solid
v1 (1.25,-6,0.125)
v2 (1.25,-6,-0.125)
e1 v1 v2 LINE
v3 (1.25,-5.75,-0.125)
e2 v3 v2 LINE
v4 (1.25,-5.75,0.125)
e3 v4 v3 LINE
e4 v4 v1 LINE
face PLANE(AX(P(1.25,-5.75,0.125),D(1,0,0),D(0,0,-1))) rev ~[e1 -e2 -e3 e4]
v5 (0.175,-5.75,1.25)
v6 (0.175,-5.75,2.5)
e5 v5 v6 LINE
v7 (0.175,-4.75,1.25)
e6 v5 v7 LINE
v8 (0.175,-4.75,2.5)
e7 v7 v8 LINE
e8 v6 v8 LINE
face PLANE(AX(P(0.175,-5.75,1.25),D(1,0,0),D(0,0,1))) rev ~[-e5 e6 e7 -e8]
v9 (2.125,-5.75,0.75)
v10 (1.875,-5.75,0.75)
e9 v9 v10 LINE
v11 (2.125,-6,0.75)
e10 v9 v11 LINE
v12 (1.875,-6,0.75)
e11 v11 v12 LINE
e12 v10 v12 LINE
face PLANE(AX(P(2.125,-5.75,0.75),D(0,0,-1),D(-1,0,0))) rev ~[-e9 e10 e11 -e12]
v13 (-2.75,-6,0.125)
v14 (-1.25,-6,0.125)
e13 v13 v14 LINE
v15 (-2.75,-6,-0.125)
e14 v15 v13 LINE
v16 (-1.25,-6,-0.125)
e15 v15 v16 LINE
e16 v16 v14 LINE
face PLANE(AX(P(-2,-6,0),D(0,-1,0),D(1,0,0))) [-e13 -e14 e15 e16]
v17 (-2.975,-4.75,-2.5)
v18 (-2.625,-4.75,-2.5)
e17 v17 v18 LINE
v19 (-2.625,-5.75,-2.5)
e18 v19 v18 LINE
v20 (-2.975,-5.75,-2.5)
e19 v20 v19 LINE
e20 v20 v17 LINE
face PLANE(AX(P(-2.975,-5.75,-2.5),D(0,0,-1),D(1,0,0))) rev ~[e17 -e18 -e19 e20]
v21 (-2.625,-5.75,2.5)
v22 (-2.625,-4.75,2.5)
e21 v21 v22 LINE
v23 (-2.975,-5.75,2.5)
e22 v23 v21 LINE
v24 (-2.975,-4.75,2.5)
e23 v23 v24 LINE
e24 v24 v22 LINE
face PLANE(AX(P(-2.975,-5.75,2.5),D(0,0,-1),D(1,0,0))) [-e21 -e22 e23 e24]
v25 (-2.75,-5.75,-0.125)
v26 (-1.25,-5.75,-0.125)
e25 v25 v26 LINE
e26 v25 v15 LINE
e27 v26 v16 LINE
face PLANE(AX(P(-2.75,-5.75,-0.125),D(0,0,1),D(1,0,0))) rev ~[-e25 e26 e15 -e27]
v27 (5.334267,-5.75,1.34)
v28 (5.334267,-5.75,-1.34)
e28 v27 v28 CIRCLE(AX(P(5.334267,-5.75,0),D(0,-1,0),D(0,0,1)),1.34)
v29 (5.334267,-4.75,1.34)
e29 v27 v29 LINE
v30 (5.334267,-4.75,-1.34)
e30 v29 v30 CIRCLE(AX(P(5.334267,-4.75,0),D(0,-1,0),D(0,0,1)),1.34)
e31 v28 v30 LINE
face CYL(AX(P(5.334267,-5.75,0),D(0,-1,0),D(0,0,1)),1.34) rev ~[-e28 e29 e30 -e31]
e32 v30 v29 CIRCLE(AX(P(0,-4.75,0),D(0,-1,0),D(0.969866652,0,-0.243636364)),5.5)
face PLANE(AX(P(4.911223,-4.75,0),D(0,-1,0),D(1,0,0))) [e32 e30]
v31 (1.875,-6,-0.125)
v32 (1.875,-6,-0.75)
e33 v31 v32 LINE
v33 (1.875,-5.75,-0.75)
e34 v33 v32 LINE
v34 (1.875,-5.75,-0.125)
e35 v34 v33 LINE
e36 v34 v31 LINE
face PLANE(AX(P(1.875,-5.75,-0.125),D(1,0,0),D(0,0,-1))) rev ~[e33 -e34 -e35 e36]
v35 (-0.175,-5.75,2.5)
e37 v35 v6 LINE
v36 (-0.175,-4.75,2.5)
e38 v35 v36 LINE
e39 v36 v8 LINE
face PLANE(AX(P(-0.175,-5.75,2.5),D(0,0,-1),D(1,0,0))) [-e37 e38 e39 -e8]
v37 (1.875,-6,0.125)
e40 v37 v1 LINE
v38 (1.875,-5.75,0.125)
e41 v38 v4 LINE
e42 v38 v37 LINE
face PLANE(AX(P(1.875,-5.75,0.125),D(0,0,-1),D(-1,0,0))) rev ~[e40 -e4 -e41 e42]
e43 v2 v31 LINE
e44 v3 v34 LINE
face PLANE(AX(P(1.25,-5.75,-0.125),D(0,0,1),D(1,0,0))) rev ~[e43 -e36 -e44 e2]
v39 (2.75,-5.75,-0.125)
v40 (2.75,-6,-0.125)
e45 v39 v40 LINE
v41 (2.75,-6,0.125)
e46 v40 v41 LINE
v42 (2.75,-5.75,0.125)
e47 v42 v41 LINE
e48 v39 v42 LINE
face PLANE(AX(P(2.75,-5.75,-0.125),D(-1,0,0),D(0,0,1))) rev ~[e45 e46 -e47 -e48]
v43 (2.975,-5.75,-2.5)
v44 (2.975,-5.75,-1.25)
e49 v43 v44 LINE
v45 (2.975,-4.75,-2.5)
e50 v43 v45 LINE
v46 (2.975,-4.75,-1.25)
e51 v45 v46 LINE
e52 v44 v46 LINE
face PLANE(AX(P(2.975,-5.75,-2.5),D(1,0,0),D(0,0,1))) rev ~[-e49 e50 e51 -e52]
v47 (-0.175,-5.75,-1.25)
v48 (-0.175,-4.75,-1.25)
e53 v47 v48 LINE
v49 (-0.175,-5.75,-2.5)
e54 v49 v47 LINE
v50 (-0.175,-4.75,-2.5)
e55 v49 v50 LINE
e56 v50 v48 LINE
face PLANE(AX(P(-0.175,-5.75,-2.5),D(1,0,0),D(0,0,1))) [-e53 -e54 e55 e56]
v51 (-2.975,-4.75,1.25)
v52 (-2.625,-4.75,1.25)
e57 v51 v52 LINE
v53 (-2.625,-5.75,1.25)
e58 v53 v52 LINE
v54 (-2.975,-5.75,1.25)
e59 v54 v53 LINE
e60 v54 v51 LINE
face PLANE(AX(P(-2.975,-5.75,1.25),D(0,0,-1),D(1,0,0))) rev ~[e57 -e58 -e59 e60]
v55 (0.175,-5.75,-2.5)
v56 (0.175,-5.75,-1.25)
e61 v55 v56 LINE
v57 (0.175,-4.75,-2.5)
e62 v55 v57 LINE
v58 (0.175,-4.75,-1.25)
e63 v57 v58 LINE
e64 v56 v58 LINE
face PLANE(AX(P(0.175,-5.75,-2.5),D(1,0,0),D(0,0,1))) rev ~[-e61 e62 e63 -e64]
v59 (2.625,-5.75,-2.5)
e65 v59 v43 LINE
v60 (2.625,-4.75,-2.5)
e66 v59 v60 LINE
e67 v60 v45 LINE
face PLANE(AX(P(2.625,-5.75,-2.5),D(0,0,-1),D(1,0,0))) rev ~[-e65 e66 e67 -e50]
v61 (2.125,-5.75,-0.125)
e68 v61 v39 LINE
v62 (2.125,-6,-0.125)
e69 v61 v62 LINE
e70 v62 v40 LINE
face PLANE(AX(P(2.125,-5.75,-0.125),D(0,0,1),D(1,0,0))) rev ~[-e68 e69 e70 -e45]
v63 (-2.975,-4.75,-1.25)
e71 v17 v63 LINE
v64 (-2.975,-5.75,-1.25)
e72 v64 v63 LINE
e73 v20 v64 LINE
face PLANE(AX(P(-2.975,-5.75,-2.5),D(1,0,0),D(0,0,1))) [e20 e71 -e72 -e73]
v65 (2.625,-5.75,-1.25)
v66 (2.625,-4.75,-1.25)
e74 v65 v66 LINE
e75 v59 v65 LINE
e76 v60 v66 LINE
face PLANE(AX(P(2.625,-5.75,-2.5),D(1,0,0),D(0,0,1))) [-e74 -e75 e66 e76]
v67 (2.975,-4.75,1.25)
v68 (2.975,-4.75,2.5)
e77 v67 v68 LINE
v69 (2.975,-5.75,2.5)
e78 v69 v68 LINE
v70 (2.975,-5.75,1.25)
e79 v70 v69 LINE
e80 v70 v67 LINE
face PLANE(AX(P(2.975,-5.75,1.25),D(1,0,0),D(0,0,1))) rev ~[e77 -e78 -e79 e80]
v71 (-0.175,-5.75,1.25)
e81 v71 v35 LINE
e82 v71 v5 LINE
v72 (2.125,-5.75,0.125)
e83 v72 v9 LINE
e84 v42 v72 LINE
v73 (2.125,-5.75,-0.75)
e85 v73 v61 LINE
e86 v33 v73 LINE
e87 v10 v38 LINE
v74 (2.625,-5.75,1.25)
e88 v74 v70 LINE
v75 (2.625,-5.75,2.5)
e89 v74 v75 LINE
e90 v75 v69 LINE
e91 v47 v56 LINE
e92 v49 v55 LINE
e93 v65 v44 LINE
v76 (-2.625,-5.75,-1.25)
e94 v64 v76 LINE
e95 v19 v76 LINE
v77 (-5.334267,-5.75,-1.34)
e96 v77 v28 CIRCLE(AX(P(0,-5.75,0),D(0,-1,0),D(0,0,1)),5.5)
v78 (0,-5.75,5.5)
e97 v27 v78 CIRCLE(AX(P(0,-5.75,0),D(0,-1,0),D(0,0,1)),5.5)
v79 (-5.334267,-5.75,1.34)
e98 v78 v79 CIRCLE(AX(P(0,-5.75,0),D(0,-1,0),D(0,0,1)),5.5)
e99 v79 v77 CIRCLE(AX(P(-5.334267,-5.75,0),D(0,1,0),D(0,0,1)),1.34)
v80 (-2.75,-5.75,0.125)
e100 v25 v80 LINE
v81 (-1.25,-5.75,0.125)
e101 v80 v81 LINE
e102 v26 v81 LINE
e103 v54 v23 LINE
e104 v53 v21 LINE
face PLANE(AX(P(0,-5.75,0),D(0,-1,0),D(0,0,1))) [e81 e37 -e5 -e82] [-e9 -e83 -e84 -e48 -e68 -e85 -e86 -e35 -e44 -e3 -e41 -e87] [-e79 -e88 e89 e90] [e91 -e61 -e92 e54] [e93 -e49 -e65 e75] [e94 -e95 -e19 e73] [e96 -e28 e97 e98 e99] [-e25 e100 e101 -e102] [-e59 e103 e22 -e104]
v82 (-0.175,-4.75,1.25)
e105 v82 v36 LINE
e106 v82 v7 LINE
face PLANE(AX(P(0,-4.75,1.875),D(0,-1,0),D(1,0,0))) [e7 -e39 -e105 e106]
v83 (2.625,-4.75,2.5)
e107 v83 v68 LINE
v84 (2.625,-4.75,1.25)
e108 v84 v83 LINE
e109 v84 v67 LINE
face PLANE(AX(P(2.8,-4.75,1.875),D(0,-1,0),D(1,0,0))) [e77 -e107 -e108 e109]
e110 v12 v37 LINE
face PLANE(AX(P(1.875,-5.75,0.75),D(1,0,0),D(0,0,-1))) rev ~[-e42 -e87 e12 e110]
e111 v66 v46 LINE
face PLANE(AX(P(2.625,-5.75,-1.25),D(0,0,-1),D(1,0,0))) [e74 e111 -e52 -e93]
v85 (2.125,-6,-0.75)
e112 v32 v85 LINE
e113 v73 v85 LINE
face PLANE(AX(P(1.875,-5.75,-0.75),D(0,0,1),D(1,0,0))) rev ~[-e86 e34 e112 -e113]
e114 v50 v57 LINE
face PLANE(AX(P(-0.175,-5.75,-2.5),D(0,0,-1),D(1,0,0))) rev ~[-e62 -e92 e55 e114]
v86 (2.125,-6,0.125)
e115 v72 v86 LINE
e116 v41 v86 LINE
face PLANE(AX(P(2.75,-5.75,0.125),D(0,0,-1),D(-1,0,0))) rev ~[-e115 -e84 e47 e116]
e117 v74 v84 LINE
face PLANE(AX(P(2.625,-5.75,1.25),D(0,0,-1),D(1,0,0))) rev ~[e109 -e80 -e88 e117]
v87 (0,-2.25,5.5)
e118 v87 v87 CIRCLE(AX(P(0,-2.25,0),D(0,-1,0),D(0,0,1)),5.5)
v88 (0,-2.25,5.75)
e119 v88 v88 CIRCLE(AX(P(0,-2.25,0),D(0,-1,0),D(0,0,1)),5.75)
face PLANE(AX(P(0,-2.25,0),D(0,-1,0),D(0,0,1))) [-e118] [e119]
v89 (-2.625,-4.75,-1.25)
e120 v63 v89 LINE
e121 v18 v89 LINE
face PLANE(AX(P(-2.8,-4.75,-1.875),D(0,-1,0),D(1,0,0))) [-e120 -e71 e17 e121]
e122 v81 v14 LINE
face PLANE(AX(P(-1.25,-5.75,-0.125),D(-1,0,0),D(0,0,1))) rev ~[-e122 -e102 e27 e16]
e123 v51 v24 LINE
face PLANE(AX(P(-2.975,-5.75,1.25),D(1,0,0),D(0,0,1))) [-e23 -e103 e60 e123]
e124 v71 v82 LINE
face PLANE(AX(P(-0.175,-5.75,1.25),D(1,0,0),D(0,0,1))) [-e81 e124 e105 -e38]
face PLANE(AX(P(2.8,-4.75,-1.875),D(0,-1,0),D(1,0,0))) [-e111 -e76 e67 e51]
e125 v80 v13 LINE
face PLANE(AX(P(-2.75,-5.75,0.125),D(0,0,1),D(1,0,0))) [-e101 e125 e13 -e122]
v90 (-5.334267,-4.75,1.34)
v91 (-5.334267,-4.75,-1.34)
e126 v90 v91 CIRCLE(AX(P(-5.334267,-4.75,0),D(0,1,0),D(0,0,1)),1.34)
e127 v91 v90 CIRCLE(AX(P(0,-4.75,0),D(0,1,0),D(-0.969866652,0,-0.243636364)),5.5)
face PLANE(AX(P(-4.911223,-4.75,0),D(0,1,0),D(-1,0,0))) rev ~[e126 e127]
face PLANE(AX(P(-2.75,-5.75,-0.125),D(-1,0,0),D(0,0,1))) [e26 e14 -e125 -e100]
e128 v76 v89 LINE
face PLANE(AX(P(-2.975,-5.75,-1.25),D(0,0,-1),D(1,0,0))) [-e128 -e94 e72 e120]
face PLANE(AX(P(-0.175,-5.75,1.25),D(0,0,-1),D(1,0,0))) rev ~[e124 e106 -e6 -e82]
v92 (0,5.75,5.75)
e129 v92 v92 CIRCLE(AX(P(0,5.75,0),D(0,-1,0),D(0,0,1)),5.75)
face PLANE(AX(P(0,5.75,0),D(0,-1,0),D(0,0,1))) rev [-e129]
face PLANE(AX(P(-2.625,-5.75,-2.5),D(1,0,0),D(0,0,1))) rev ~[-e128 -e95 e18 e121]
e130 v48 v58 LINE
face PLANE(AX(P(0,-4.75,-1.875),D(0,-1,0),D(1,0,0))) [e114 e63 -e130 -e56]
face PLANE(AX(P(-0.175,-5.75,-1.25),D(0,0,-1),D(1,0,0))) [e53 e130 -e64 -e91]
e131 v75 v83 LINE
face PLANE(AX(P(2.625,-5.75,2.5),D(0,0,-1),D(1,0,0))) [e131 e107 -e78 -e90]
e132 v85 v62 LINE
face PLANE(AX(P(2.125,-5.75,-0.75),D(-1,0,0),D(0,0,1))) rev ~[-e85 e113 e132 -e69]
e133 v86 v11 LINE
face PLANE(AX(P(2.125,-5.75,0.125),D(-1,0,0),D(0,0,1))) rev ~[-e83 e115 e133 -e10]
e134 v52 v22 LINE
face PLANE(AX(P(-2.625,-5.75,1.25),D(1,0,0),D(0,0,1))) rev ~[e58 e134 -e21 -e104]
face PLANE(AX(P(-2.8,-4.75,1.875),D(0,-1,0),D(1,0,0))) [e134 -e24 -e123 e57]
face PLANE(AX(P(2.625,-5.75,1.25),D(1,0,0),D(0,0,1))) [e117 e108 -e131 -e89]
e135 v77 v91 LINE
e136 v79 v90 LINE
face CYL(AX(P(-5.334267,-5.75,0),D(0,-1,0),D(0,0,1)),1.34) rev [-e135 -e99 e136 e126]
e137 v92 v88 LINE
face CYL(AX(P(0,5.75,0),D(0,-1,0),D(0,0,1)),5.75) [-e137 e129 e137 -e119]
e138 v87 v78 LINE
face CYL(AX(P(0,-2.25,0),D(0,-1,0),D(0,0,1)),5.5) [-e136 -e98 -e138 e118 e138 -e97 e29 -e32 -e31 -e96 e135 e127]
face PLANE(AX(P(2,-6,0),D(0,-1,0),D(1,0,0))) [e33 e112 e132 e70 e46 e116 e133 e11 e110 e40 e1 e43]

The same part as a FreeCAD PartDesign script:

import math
import FreeCAD as App
import Part
import Sketcher

V = App.Vector
Q = App.Units.Quantity


def add_polygon(sketch, points):
    """Adds a closed chain of lines whose ends are joined by coincident constraints."""
    first, n = sketch.GeometryCount, len(points)
    for a, b in zip(points, points[1:] + points[:1]):
        sketch.addGeometry(Part.LineSegment(App.Vector(*a, 0), App.Vector(*b, 0)), False)
    for i in range(n):
        sketch.addConstraint(Sketcher.Constraint("Coincident", first + i, 2, first + (i + 1) % n, 1))

doc = App.newDocument("Part")
params = doc.addObject("Spreadsheet::Sheet", "Params")
for row, (alias, value) in enumerate([
    ("sketch1_width", "8 mm"),
    ("sketch1_width2", "3.5 mm"),
    ("sketch1_height", "5.5 mm"),
    ("sketch1_height2", "5.75 mm"),
    ("revolution_angle", "360 deg"),
    ("sketch2_radius", "5.5 mm"),
    ("sketch2_radius2", "1.34 mm"),
    ("sketch2_width", "0.35 mm"),
    ("sketch2_height", "1.25 mm"),
    ("pocket1_length", "1 mm"),
    ("sketch3_width", "1.5 mm"),
    ("sketch3_width2", "0.25 mm"),
    ("pad1_length", "0.25 mm"),
], start=1):
    params.set(f"A{row}", alias)
    params.set(f"B{row}", "=" + value)
    params.setAlias(f"B{row}", alias)

body = doc.addObject("PartDesign::Body", "Body")

# Sketch on YZ plane
sketch1 = body.newObject("Sketcher::SketchObject", "Sketch")
sketch1.AttachmentSupport = (doc.getObject("YZ_Plane"), [""])
sketch1.MapMode = "FlatFace"
add_polygon(sketch1, [(5.75, 0), (5.75, 5.75), (-2.25, 5.75), (-2.25, 5.5), (-5.75, 5.5), (-5.75, 0)])  # lines 0-5
sketch1.addConstraint(Sketcher.Constraint("Vertical", 0))
sketch1.addConstraint(Sketcher.Constraint("Horizontal", 1))
sketch1.addConstraint(Sketcher.Constraint("Vertical", 2))
sketch1.addConstraint(Sketcher.Constraint("Horizontal", 3))
sketch1.addConstraint(Sketcher.Constraint("Vertical", 4))
sketch1.addConstraint(Sketcher.Constraint("Horizontal", 5))
sketch1.addConstraint(Sketcher.Constraint("Symmetric", 4, 2, 5, 2, -1, 1))
sketch1.addConstraint(Sketcher.Constraint("DistanceX", 1, 2, 1, 1, Q("8 mm")))
sketch1.addConstraint(Sketcher.Constraint("DistanceX", 3, 2, 3, 1, Q("3.5 mm")))
sketch1.addConstraint(Sketcher.Constraint("DistanceY", 4, 2, 4, 1, Q("5.5 mm")))
sketch1.addConstraint(Sketcher.Constraint("DistanceY", 0, 1, 0, 2, Q("5.75 mm")))
sketch1.setExpression("Constraints[13]", "Params.sketch1_width")
sketch1.setExpression("Constraints[14]", "Params.sketch1_width2")
sketch1.setExpression("Constraints[15]", "Params.sketch1_height")
sketch1.setExpression("Constraints[16]", "Params.sketch1_height2")
revolution = body.newObject("PartDesign::Revolution", "Revolution")
revolution.Profile = sketch1
revolution.ReferenceAxis = (sketch1, ["H_Axis"])
revolution.setExpression("Angle", "Params.revolution_angle")

# Sketch on XZ plane
sketch2 = body.newObject("Sketcher::SketchObject", "Sketch001")
sketch2.AttachmentSupport = (doc.getObject("XZ_Plane"), [""])
sketch2.MapMode = "FlatFace"
sketch2.AttachmentOffset = App.Placement(V(0, 0, 5.75), App.Rotation())
add_polygon(sketch2, [(-0.17, -1.25), (-0.17, -2.5), (0.17, -2.5), (0.17, -1.25)])  # lines 0-3
add_polygon(sketch2, [(2.62, 2.5), (2.62, 1.25), (2.98, 1.25), (2.98, 2.5)])  # lines 4-7
add_polygon(sketch2, [(-0.17, 2.5), (-0.17, 1.25), (0.17, 1.25), (0.17, 2.5)])  # lines 8-11
add_polygon(sketch2, [(2.62, -1.25), (2.62, -2.5), (2.98, -2.5), (2.98, -1.25)])  # lines 12-15
add_polygon(sketch2, [(-2.98, -1.25), (-2.98, -2.5), (-2.62, -2.5), (-2.62, -1.25)])  # lines 16-19
add_polygon(sketch2, [(-2.98, 2.5), (-2.98, 1.25), (-2.62, 1.25), (-2.62, 2.5)])  # lines 20-23
sketch2.addGeometry(Part.ArcOfCircle(Part.Circle(V(5.33, 0, 0), V(0, 0, 1), 1.34), math.radians(90), math.radians(270)), False)  # 24
sketch2.addGeometry(Part.ArcOfCircle(Part.Circle(V(0, 0, 0), V(0, 0, 1), 5.5), math.radians(-14), math.radians(14)), False)  # 25
sketch2.addGeometry(Part.ArcOfCircle(Part.Circle(V(-5.33, 0, 0), V(0, 0, 1), 1.34), math.radians(-90), math.radians(90)), False)  # 26
sketch2.addGeometry(Part.ArcOfCircle(Part.Circle(V(0, 0, 0), V(0, 0, 1), 5.5), math.radians(166), math.radians(194)), False)  # 27
sketch2.addConstraint(Sketcher.Constraint("Coincident", 24, 1, 25, 2))
sketch2.addConstraint(Sketcher.Constraint("Coincident", 25, 1, 24, 2))
sketch2.addConstraint(Sketcher.Constraint("Coincident", 26, 1, 27, 2))
sketch2.addConstraint(Sketcher.Constraint("Coincident", 27, 1, 26, 2))
sketch2.addConstraint(Sketcher.Constraint("Vertical", 0))
sketch2.addConstraint(Sketcher.Constraint("Horizontal", 1))
sketch2.addConstraint(Sketcher.Constraint("Vertical", 2))
sketch2.addConstraint(Sketcher.Constraint("Horizontal", 3))
sketch2.addConstraint(Sketcher.Constraint("Vertical", 4))
sketch2.addConstraint(Sketcher.Constraint("Horizontal", 5))
sketch2.addConstraint(Sketcher.Constraint("Vertical", 6))
sketch2.addConstraint(Sketcher.Constraint("Horizontal", 7))
sketch2.addConstraint(Sketcher.Constraint("Vertical", 8))
sketch2.addConstraint(Sketcher.Constraint("Horizontal", 9))
sketch2.addConstraint(Sketcher.Constraint("Vertical", 10))
sketch2.addConstraint(Sketcher.Constraint("Horizontal", 11))
sketch2.addConstraint(Sketcher.Constraint("Vertical", 12))
sketch2.addConstraint(Sketcher.Constraint("Horizontal", 13))
sketch2.addConstraint(Sketcher.Constraint("Vertical", 14))
sketch2.addConstraint(Sketcher.Constraint("Horizontal", 15))
sketch2.addConstraint(Sketcher.Constraint("Vertical", 16))
sketch2.addConstraint(Sketcher.Constraint("Horizontal", 17))
sketch2.addConstraint(Sketcher.Constraint("Vertical", 18))
sketch2.addConstraint(Sketcher.Constraint("Horizontal", 19))
sketch2.addConstraint(Sketcher.Constraint("Vertical", 20))
sketch2.addConstraint(Sketcher.Constraint("Horizontal", 21))
sketch2.addConstraint(Sketcher.Constraint("Vertical", 22))
sketch2.addConstraint(Sketcher.Constraint("Horizontal", 23))
sketch2.addConstraint(Sketcher.Constraint("Coincident", 25, 3, -1, 1))
sketch2.addConstraint(Sketcher.Constraint("Coincident", 27, 3, -1, 1))
sketch2.addConstraint(Sketcher.Constraint("Equal", 24, 26))
sketch2.addConstraint(Sketcher.Constraint("Equal", 25, 27))
sketch2.addConstraint(Sketcher.Constraint("Symmetric", 24, 3, 26, 3, -1, 1))
sketch2.addConstraint(Sketcher.Constraint("Symmetric", 2, 2, 8, 2, -1, 1))
sketch2.addConstraint(Sketcher.Constraint("Symmetric", 0, 2, 10, 2, -1, 1))
sketch2.addConstraint(Sketcher.Constraint("Symmetric", 6, 2, 16, 2, -1, 1))
sketch2.addConstraint(Sketcher.Constraint("Symmetric", 4, 2, 18, 2, -1, 1))
sketch2.addConstraint(Sketcher.Constraint("Symmetric", 14, 2, 20, 2, -1, 1))
sketch2.addConstraint(Sketcher.Constraint("Symmetric", 12, 2, 22, 2, -1, 1))
sketch2.addConstraint(Sketcher.Constraint("Symmetric", 13, 2, 16, 2, -2))
sketch2.addConstraint(Sketcher.Constraint("Symmetric", 15, 2, 18, 2, -2))
sketch2.addConstraint(Sketcher.Constraint("PointOnObject", 24, 3, -1))
sketch2.addConstraint(Sketcher.Constraint("Horizontal", 5, 2, 8, 2))
sketch2.addConstraint(Sketcher.Constraint("Horizontal", 7, 2, 10, 2))
sketch2.addConstraint(Sketcher.Constraint("Vertical", 3, 2, 8, 2))
sketch2.addConstraint(Sketcher.Constraint("Equal", 3, 5))
sketch2.addConstraint(Sketcher.Constraint("Radius", 25, Q("5.5 mm")))
sketch2.addConstraint(Sketcher.Constraint("Radius", 24, Q("1.34 mm")))
sketch2.addConstraint(Sketcher.Constraint("DistanceX", 1, 1, 1, 2, Q("0.35 mm")))
sketch2.addConstraint(Sketcher.Constraint("DistanceY", 0, 2, 0, 1, Q("1.25 mm")))
sketch2.addConstraint(Sketcher.Constraint("DistanceY", 0, 2, -1, 1, Q("2.5 mm")))
sketch2.addConstraint(Sketcher.Constraint("DistanceX", 3, 2, 4, 2, Q("2.8 mm")))
sketch2.addConstraint(Sketcher.Constraint("DistanceX", -1, 1, 24, 3, Q("5.334267 mm")))
sketch2.setExpression("Constraints[70]", "Params.sketch2_radius")
sketch2.setExpression("Constraints[71]", "Params.sketch2_radius2")
sketch2.setExpression("Constraints[72]", "Params.sketch2_width")
sketch2.setExpression("Constraints[73]", "Params.sketch2_height")
pocket1 = body.newObject("PartDesign::Pocket", "Pocket")
pocket1.Profile = sketch2
pocket1.setExpression("Length", "Params.pocket1_length")

# Sketch on XZ plane
sketch3 = body.newObject("Sketcher::SketchObject", "Sketch002")
sketch3.AttachmentSupport = (doc.getObject("XZ_Plane"), [""])
sketch3.MapMode = "FlatFace"
sketch3.AttachmentOffset = App.Placement(V(0, 0, 5.75), App.Rotation())
add_polygon(sketch3, [(1.25, -0.12), (1.88, -0.12), (1.88, -0.75), (2.12, -0.75), (2.12, -0.12), (2.75, -0.12), (2.75, 0.12), (2.12, 0.12), (2.12, 0.75), (1.88, 0.75), (1.88, 0.12), (1.25, 0.12)])  # lines 0-11
add_polygon(sketch3, [(-2.75, 0.12), (-2.75, -0.12), (-1.25, -0.12), (-1.25, 0.12)])  # lines 12-15
sketch3.addConstraint(Sketcher.Constraint("Horizontal", 0))
sketch3.addConstraint(Sketcher.Constraint("Vertical", 1))
sketch3.addConstraint(Sketcher.Constraint("Horizontal", 2))
sketch3.addConstraint(Sketcher.Constraint("Vertical", 3))
sketch3.addConstraint(Sketcher.Constraint("Horizontal", 4))
sketch3.addConstraint(Sketcher.Constraint("Vertical", 5))
sketch3.addConstraint(Sketcher.Constraint("Horizontal", 6))
sketch3.addConstraint(Sketcher.Constraint("Vertical", 7))
sketch3.addConstraint(Sketcher.Constraint("Horizontal", 8))
sketch3.addConstraint(Sketcher.Constraint("Vertical", 9))
sketch3.addConstraint(Sketcher.Constraint("Horizontal", 10))
sketch3.addConstraint(Sketcher.Constraint("Vertical", 11))
sketch3.addConstraint(Sketcher.Constraint("Vertical", 12))
sketch3.addConstraint(Sketcher.Constraint("Horizontal", 13))
sketch3.addConstraint(Sketcher.Constraint("Vertical", 14))
sketch3.addConstraint(Sketcher.Constraint("Horizontal", 15))
sketch3.addConstraint(Sketcher.Constraint("Symmetric", 5, 2, 12, 2, -1, 1))
sketch3.addConstraint(Sketcher.Constraint("Symmetric", 10, 2, 13, 2, -1, 1))
sketch3.addConstraint(Sketcher.Constraint("Symmetric", 3, 2, 6, 2, -1))
sketch3.addConstraint(Sketcher.Constraint("Symmetric", 1, 2, 8, 2, -1))
sketch3.addConstraint(Sketcher.Constraint("Horizontal", 0, 2, 3, 2))
sketch3.addConstraint(Sketcher.Constraint("Horizontal", 10, 2, 14, 2))
sketch3.addConstraint(Sketcher.Constraint("Equal", 0, 4))
sketch3.addConstraint(Sketcher.Constraint("Equal", 10, 1))
sketch3.addConstraint(Sketcher.Constraint("Equal", 8, 5))
sketch3.addConstraint(Sketcher.Constraint("DistanceX", 13, 1, 13, 2, Q("1.5 mm")))
sketch3.addConstraint(Sketcher.Constraint("DistanceX", 12, 2, 11, 2, Q("4 mm")))
sketch3.addConstraint(Sketcher.Constraint("DistanceX", 2, 1, 2, 2, Q("0.25 mm")))
sketch3.setExpression("Constraints[41]", "Params.sketch3_width")
sketch3.setExpression("Constraints[43]", "Params.sketch3_width2")
pad1 = body.newObject("PartDesign::Pad", "Pad")
pad1.Profile = sketch3
pad1.setExpression("Length", "Params.pad1_length")

doc.recompute()
